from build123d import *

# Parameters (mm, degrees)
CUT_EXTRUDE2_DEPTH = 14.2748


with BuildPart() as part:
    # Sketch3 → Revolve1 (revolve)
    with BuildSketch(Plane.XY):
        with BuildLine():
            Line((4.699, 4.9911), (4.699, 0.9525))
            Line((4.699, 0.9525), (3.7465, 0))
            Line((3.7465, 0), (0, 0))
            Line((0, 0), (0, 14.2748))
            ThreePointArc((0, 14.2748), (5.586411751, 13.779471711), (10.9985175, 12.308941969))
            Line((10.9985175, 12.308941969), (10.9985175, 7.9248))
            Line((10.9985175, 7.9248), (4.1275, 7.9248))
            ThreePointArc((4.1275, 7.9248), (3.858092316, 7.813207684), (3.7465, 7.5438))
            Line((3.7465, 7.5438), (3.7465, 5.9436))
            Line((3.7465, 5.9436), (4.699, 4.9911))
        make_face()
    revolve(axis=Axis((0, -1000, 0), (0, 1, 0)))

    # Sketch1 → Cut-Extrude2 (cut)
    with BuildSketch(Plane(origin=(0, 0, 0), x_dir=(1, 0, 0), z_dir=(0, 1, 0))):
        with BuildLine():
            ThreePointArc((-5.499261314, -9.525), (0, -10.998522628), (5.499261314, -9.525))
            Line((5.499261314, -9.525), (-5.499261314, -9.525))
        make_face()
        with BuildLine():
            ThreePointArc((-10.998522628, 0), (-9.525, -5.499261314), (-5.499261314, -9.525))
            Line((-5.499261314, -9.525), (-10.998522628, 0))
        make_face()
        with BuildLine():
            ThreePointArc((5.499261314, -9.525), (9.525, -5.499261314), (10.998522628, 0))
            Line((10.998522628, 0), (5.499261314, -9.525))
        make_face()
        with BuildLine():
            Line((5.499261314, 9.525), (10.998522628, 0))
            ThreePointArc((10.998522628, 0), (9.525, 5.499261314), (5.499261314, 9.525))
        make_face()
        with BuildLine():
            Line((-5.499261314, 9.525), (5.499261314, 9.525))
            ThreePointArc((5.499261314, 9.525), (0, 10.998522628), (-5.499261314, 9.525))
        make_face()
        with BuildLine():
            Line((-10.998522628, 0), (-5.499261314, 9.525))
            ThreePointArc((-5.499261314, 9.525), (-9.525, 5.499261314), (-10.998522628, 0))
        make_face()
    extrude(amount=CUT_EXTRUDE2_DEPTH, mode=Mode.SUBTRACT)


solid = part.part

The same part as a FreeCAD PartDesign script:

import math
import FreeCAD as App
import Part
import Sketcher
from FreeCAD import Vector
Q = App.Units.Quantity

doc = App.newDocument("Part")
body = doc.addObject("PartDesign::Body", "Body")

# Sketch on XY plane
sketch1 = doc.addObject("Sketcher::SketchObject", "Sketch")
body.addObject(sketch1)
sketch1.AttachmentSupport = (doc.XY_Plane, [""])
sketch1.MapMode = "FlatFace"
sketch1.addGeometry(Part.LineSegment(Vector(4.699, 0.9525, 0), Vector(4.699, 4.9911, 0)), False)
sketch1.addGeometry(Part.LineSegment(Vector(4.699, 4.9911, 0), Vector(3.7465, 5.9436, 0)), False)
sketch1.addGeometry(Part.LineSegment(Vector(3.7465, 5.9436, 0), Vector(3.7465, 7.5438, 0)), False)
sketch1.addGeometry(Part.ArcOfCircle(Part.Circle(Vector(4.1275, 7.5438, 0), Vector(0, 0, 1), 0.381), math.radians(90), math.radians(180)), False)
sketch1.addGeometry(Part.LineSegment(Vector(4.1275, 7.9248, 0), Vector(10.998518, 7.9248, 0)), False)
sketch1.addGeometry(Part.LineSegment(Vector(10.998518, 7.9248, 0), Vector(10.998518, 12.308942, 0)), False)
sketch1.addGeometry(Part.ArcOfCircle(Part.Circle(Vector(0, -17.4752, 0), Vector(0, 0, 1), 31.75), math.radians(69.732109), math.radians(90)), False)
sketch1.addGeometry(Part.LineSegment(Vector(0, 14.2748, 0), Vector(0, 0, 0)), False)
sketch1.addGeometry(Part.LineSegment(Vector(0, 0, 0), Vector(3.7465, 0, 0)), False)
sketch1.addGeometry(Part.LineSegment(Vector(3.7465, 0, 0), Vector(4.699, 0.9525, 0)), False)
sketch1.addConstraint(Sketcher.Constraint("Coincident", 0, 2, 1, 1))
sketch1.addConstraint(Sketcher.Constraint("Coincident", 1, 2, 2, 1))
sketch1.addConstraint(Sketcher.Constraint("Tangent", 2, 2, 3, 2))
sketch1.addConstraint(Sketcher.Constraint("Tangent", 3, 1, 4, 1))
sketch1.addConstraint(Sketcher.Constraint("Coincident", 4, 2, 5, 1))
sketch1.addConstraint(Sketcher.Constraint("Coincident", 5, 2, 6, 1))
sketch1.addConstraint(Sketcher.Constraint("Coincident", 6, 2, 7, 1))
sketch1.addConstraint(Sketcher.Constraint("Coincident", 7, 2, 8, 1))
sketch1.addConstraint(Sketcher.Constraint("Coincident", 8, 2, 9, 1))
sketch1.addConstraint(Sketcher.Constraint("Coincident", 9, 2, 0, 1))
sketch1.addConstraint(Sketcher.Constraint("Vertical", 0))
sketch1.addConstraint(Sketcher.Constraint("Vertical", 2))
sketch1.addConstraint(Sketcher.Constraint("Horizontal", 4))
sketch1.addConstraint(Sketcher.Constraint("Vertical", 5))
sketch1.addConstraint(Sketcher.Constraint("Vertical", 7))
sketch1.addConstraint(Sketcher.Constraint("Horizontal", 8))
sketch1.addConstraint(Sketcher.Constraint("Coincident", 7, 2, -1, 1))
sketch1.addConstraint(Sketcher.Constraint("PointOnObject", 6, 3, -2))
sketch1.addConstraint(Sketcher.Constraint("Perpendicular", 1, 9))
sketch1.addConstraint(Sketcher.Constraint("Vertical", 2, 2, 8, 2))
sketch1.addConstraint(Sketcher.Constraint("Equal", 1, 9))
sketch1.addConstraint(Sketcher.Constraint("Radius", 6, Q("1.25 in")))
sketch1.addConstraint(Sketcher.Constraint("Radius", 3, Q("0.015 in")))
sketch1.addConstraint(Sketcher.Constraint("DistanceY", 6, 3, 3, 1, Q("1 in")))
sketch1.addConstraint(Sketcher.Constraint("DistanceY", 0, 1, 0, 2, Q("0.159 in")))
sketch1.addConstraint(Sketcher.Constraint("DistanceY", 2, 1, 2, 2, Q("0.063 in")))
sketch1.addConstraint(Sketcher.Constraint("DistanceY", 7, 2, 7, 1, Q("0.562 in")))
sketch1.addConstraint(Sketcher.Constraint("DistanceX", 8, 1, 8, 2, Q("0.1475 in")))
sketch1.addConstraint(Sketcher.Constraint("DistanceY", 5, 1, 5, 2, 4.384142))
revolution = doc.addObject("PartDesign::Revolution", "Revolution")
body.addObject(revolution)
revolution.Profile = sketch1
revolution.ReferenceAxis = (sketch1, ["V_Axis"])
revolution.Angle = 360

# Sketch on XZ plane
sketch2 = doc.addObject("Sketcher::SketchObject", "Sketch001")
body.addObject(sketch2)
sketch2.AttachmentSupport = (doc.XZ_Plane, [""])
sketch2.MapMode = "FlatFace"
sketch2.addGeometry(Part.ArcOfCircle(Part.Circle(Vector(0, 0, 0), Vector(0, 0, 1), 10.998523), math.radians(60), math.radians(120)), False)
sketch2.addGeometry(Part.LineSegment(Vector(5.499261, 9.525, 0), Vector(-5.499261, 9.525, 0)), False)
sketch2.addGeometry(Part.ArcOfCircle(Part.Circle(Vector(0, 0, 0), Vector(0, 0, 1), 10.998523), math.radians(120), math.radians(180)), False)
sketch2.addGeometry(Part.LineSegment(Vector(-5.499261, 9.525, 0), Vector(-10.998523, 0, 0)), False)
sketch2.addGeometry(Part.ArcOfCircle(Part.Circle(Vector(0, 0, 0), Vector(0, 0, 1), 10.998523), math.radians(0), math.radians(60)), False)
sketch2.addGeometry(Part.LineSegment(Vector(10.998523, 0, 0), Vector(5.499261, 9.525, 0)), False)
sketch2.addGeometry(Part.LineSegment(Vector(5.499261, -9.525, 0), Vector(10.998523, 0, 0)), False)
sketch2.addGeometry(Part.ArcOfCircle(Part.Circle(Vector(0, 0, 0), Vector(0, 0, 1), 10.998523), math.radians(-60), math.radians(0)), False)
sketch2.addGeometry(Part.LineSegment(Vector(-5.499261, -9.525, 0), Vector(5.499261, -9.525, 0)), False)
sketch2.addGeometry(Part.ArcOfCircle(Part.Circle(Vector(0, 0, 0), Vector(0, 0, 1), 10.998523), math.radians(-120), math.radians(-60)), False)
sketch2.addGeometry(Part.LineSegment(Vector(-10.998523, 0, 0), Vector(-5.499261, -9.525, 0)), False)
sketch2.addGeometry(Part.ArcOfCircle(Part.Circle(Vector(0, 0, 0), Vector(0, 0, 1), 10.998523), math.radians(180), math.radians(240)), False)
sketch2.addConstraint(Sketcher.Constraint("Coincident", 0, 1, 1, 1))
sketch2.addConstraint(Sketcher.Constraint("Coincident", 1, 2, 0, 2))
sketch2.addConstraint(Sketcher.Constraint("Coincident", 2, 1, 3, 1))
sketch2.addConstraint(Sketcher.Constraint("Coincident", 3, 2, 2, 2))
sketch2.addConstraint(Sketcher.Constraint("Coincident", 4, 1, 5, 1))
sketch2.addConstraint(Sketcher.Constraint("Coincident", 5, 2, 4, 2))
sketch2.addConstraint(Sketcher.Constraint("Coincident", 6, 1, 7, 1))
sketch2.addConstraint(Sketcher.Constraint("Coincident", 7, 2, 6, 2))
sketch2.addConstraint(Sketcher.Constraint("Coincident", 8, 1, 9, 1))
sketch2.addConstraint(Sketcher.Constraint("Coincident", 9, 2, 8, 2))
sketch2.addConstraint(Sketcher.Constraint("Coincident", 10, 1, 11, 1))
sketch2.addConstraint(Sketcher.Constraint("Coincident", 11, 2, 10, 2))
sketch2.addConstraint(Sketcher.Constraint("Horizontal", 1))
sketch2.addConstraint(Sketcher.Constraint("Horizontal", 8))
sketch2.addConstraint(Sketcher.Constraint("Coincident", 0, 3, -1, 1))
sketch2.addConstraint(Sketcher.Constraint("Coincident", 2, 3, -1, 1))
sketch2.addConstraint(Sketcher.Constraint("Coincident", 4, 3, -1, 1))
sketch2.addConstraint(Sketcher.Constraint("Coincident", 7, 3, -1, 1))
sketch2.addConstraint(Sketcher.Constraint("Coincident", 9, 3, -1, 1))
sketch2.addConstraint(Sketcher.Constraint("Coincident", 11, 3, -1, 1))
sketch2.addConstraint(Sketcher.Constraint("Coincident", 2, 1, 1, 2))
sketch2.addConstraint(Sketcher.Constraint("Coincident", 5, 2, 0, 1))
sketch2.addConstraint(Sketcher.Constraint("Coincident", 7, 2, 4, 1))
sketch2.addConstraint(Sketcher.Constraint("Coincident", 9, 2, 6, 1))
sketch2.addConstraint(Sketcher.Constraint("Coincident", 10, 1, 3, 2))
sketch2.addConstraint(Sketcher.Constraint("PointOnObject", 3, 2, -1))
sketch2.addConstraint(Sketcher.Constraint("PointOnObject", 4, 1, -1))
sketch2.addConstraint(Sketcher.Constraint("Parallel", 3, 6))
sketch2.addConstraint(Sketcher.Constraint("Parallel", 5, 10))
sketch2.addConstraint(Sketcher.Constraint("Angle", 3, Q("-120 deg")))
sketch2.addConstraint(Sketcher.Constraint("DistanceY", -1, 1, 0, 1, Q("0.375 in")))
pocket1 = doc.addObject("PartDesign::Pocket", "Pocket")
body.addObject(pocket1)
pocket1.Profile = sketch2
pocket1.Length = Q("0.562 in")

doc.recompute()
